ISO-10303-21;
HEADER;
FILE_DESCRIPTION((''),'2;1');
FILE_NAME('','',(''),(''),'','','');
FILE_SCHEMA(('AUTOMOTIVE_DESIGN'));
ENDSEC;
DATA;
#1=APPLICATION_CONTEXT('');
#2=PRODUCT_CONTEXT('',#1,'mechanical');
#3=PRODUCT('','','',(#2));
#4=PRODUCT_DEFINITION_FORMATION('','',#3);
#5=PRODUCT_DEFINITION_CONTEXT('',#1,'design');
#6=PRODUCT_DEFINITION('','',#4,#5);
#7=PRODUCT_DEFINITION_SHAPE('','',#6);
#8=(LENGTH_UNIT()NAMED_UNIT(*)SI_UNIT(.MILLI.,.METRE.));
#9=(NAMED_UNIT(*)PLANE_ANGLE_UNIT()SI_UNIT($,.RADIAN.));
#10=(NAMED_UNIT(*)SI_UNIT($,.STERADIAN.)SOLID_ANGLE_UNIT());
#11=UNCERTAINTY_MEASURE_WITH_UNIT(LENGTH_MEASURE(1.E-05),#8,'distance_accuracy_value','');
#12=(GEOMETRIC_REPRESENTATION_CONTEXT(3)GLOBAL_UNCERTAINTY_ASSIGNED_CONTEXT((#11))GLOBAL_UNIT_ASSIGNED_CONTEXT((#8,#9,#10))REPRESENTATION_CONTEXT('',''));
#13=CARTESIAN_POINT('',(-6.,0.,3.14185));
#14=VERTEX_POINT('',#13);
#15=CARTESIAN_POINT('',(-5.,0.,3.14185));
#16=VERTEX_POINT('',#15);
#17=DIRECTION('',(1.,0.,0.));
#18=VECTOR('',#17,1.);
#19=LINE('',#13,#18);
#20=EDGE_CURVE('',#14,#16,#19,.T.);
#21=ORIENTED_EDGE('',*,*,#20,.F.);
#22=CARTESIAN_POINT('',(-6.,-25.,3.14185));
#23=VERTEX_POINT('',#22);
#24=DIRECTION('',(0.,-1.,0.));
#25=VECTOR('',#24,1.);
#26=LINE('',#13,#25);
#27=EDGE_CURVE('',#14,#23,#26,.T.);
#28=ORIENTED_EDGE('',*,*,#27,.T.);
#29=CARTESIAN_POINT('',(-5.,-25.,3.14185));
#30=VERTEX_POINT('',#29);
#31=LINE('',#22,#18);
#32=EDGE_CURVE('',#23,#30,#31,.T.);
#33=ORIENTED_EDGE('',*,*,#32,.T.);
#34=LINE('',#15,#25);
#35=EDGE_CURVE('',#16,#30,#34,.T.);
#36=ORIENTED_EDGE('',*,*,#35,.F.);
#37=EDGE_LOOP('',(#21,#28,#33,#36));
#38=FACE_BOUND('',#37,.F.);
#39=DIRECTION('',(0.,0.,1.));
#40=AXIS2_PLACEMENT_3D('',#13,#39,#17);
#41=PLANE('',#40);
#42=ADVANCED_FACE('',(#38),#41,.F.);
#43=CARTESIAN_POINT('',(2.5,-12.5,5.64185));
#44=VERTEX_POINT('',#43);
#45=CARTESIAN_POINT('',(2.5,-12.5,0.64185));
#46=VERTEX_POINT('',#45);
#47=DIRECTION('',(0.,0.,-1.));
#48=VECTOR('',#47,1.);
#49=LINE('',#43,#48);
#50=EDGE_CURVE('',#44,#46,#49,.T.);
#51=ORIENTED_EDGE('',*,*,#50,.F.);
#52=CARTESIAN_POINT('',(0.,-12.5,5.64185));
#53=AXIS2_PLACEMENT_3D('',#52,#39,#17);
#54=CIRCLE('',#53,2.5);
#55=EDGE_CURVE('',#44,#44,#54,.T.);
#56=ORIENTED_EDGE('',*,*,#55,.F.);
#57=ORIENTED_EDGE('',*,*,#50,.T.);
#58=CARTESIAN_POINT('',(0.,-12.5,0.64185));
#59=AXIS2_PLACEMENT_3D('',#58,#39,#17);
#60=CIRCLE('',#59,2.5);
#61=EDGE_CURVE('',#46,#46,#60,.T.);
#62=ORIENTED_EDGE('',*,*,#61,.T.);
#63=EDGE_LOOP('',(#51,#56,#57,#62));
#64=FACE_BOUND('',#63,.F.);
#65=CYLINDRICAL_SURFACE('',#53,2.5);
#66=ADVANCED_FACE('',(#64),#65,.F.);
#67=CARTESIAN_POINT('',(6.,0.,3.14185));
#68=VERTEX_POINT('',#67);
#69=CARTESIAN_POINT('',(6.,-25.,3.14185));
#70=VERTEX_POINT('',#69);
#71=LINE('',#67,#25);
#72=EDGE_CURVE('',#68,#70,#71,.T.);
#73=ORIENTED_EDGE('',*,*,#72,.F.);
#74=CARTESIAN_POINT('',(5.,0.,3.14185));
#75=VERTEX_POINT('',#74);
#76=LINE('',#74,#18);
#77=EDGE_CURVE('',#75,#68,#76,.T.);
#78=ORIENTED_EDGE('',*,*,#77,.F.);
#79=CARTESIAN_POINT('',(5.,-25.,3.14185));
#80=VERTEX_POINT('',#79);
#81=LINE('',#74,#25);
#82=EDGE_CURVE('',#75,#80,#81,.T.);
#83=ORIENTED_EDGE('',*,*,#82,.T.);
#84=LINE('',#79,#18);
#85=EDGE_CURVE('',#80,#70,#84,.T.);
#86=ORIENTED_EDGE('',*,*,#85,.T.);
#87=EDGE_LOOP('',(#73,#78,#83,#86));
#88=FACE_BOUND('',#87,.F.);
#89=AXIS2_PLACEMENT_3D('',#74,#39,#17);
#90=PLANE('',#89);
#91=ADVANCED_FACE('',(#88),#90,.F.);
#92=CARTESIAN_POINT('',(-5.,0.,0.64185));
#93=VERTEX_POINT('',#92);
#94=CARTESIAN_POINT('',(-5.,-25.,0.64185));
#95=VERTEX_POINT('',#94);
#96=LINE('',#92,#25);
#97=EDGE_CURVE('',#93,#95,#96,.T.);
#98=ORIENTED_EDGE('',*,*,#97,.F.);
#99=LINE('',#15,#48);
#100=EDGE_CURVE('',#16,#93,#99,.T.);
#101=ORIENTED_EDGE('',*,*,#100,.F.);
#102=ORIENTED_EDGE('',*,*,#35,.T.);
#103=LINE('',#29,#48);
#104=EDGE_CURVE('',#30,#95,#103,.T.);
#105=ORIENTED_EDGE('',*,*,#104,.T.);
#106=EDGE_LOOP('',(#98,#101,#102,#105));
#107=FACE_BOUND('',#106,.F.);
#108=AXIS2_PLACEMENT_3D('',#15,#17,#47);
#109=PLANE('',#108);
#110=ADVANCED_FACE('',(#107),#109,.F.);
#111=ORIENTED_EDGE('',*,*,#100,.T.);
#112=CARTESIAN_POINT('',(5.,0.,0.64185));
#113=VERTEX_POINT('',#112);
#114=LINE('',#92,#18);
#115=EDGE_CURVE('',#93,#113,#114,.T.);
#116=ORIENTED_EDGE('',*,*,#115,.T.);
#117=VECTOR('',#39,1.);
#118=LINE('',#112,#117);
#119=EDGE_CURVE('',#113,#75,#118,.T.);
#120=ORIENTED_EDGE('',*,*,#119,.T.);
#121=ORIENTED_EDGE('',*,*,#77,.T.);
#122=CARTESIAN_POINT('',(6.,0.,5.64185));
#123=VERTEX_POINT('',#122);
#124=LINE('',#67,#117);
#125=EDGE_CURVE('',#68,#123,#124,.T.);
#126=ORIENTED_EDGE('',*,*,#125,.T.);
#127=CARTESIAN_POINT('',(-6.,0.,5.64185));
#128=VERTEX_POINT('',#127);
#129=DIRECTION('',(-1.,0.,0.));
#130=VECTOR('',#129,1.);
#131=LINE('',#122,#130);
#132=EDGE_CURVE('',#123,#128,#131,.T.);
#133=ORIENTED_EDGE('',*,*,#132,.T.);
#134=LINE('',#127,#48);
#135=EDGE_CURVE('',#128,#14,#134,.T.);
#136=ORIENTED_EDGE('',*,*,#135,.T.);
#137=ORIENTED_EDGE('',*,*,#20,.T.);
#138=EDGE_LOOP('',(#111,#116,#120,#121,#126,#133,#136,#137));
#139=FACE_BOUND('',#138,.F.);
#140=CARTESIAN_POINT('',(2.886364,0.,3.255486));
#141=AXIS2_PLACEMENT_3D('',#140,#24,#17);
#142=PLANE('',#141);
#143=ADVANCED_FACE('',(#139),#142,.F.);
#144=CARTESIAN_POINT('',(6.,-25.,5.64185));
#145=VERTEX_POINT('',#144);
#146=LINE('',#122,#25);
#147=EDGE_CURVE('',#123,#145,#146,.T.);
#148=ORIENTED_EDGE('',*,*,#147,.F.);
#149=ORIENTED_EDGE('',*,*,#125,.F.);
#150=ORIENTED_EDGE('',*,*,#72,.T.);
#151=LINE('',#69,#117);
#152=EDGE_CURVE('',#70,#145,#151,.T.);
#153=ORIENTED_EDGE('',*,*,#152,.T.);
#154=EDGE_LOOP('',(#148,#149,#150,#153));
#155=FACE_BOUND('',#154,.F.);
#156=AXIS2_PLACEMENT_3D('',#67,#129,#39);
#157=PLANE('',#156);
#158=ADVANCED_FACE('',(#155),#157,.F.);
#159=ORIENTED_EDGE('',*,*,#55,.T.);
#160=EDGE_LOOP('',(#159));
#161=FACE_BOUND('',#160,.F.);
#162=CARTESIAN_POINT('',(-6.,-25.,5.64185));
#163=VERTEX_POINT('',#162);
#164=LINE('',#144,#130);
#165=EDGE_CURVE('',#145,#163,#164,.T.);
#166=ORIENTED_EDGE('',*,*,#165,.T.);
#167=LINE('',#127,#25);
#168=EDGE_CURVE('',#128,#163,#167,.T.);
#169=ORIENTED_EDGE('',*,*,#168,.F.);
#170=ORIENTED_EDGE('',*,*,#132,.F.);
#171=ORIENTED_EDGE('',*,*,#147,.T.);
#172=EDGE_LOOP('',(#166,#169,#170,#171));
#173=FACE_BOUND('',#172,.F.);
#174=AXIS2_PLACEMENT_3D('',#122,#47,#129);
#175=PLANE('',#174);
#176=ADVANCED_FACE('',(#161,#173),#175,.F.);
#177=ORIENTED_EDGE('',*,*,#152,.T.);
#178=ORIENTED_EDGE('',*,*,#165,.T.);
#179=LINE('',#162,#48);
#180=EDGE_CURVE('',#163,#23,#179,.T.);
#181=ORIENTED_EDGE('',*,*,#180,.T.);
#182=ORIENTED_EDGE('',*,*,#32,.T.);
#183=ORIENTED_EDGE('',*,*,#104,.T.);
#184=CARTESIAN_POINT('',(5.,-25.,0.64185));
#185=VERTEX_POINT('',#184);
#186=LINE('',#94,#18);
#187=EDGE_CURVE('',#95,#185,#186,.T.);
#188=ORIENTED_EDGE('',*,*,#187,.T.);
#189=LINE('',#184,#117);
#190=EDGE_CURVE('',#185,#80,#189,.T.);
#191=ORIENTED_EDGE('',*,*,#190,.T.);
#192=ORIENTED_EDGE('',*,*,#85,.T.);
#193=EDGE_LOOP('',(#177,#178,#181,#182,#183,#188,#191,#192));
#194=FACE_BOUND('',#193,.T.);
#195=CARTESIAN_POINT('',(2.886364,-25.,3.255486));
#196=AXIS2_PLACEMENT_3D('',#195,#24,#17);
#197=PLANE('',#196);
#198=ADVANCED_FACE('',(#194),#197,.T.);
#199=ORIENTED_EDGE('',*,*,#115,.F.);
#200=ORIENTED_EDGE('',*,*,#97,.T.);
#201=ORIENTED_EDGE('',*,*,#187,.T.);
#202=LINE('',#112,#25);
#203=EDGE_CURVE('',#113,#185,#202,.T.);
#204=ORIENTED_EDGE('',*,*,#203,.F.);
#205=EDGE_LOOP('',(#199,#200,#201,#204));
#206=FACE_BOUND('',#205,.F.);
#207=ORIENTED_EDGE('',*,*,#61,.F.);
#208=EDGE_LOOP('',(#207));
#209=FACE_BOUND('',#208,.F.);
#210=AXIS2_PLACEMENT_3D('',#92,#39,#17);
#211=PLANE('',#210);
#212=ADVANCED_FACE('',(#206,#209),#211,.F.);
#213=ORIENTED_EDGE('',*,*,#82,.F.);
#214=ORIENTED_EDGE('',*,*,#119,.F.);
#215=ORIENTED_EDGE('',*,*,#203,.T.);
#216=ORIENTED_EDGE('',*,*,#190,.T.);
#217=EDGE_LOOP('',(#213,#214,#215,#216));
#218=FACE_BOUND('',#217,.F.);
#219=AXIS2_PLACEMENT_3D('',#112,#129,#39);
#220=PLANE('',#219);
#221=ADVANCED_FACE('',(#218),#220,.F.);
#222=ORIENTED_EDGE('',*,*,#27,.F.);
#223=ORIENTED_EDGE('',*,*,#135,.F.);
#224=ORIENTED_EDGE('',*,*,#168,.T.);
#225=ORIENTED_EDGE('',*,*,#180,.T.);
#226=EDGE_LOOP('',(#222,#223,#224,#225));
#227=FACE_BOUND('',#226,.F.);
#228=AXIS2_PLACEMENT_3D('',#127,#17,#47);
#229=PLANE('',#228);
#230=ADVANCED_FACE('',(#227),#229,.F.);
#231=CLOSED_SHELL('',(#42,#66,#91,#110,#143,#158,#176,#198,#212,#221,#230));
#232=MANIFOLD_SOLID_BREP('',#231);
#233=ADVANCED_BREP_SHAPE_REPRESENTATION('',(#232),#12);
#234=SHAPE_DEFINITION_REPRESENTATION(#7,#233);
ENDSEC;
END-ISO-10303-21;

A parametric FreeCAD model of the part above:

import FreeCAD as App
import Part
import Sketcher
from FreeCAD import Vector
Q = App.Units.Quantity


def add_polygon(sketch, points):
    """Adds a closed chain of lines whose ends are joined by coincident constraints."""
    first, n = sketch.GeometryCount, len(points)
    for a, b in zip(points, points[1:] + points[:1]):
        sketch.addGeometry(Part.LineSegment(App.Vector(*a, 0), App.Vector(*b, 0)), False)
    for i in range(n):
        sketch.addConstraint(Sketcher.Constraint("Coincident", first + i, 2, first + (i + 1) % n, 1))

doc = App.newDocument("Part")
params = doc.addObject("Spreadsheet::Sheet", "Params")
for row, (alias, value) in enumerate([
    ("sketch1_width", "12 mm"),
    ("sketch1_width2", "1 mm"),
    ("sketch1_height", "2.5 mm"),
    ("pad1_length", "25 mm"),
    ("sketch2_diameter", "5 mm"),
    ("pocket1_length", "25 mm"),
], start=1):
    params.set(f"A{row}", alias)
    params.set(f"B{row}", "=" + value)
    params.setAlias(f"B{row}", alias)

body = doc.addObject("PartDesign::Body", "Body")

# Sketch on XZ plane
sketch1 = doc.addObject("Sketcher::SketchObject", "Sketch")
body.addObject(sketch1)
sketch1.AttachmentSupport = (doc.XZ_Plane, [""])
sketch1.MapMode = "FlatFace"
add_polygon(sketch1, [(6, 5.6), (-6, 5.6), (-6, 3.1), (-5, 3.1), (-5, 0.6), (5, 0.6), (5, 3.1), (6, 3.1)])  # lines 0-7
sketch1.addConstraint([
    Sketcher.Constraint("Horizontal", 0),
    Sketcher.Constraint("Vertical", 1),
    Sketcher.Constraint("Horizontal", 2),
    Sketcher.Constraint("Vertical", 3),
    Sketcher.Constraint("Horizontal", 4),
    Sketcher.Constraint("Vertical", 5),
    Sketcher.Constraint("Horizontal", 6),
    Sketcher.Constraint("Vertical", 7),
    Sketcher.Constraint("Symmetric", 2, 2, 5, 2, -2),
    Sketcher.Constraint("Equal", 2, 6),
    Sketcher.Constraint("Equal", 1, 3),
    Sketcher.Constraint("DistanceX", 0, 2, 0, 1, Q("12 mm")),
    Sketcher.Constraint("DistanceX", 2, 1, 2, 2, Q("1 mm")),
    Sketcher.Constraint("DistanceY", 1, 2, 1, 1, Q("2.5 mm")),
    Sketcher.Constraint("DistanceY", -1, 1, 0, 2, Q("5.64185 mm")),
])
sketch1.setExpression("Constraints[19]", "Params.sketch1_width")
sketch1.setExpression("Constraints[20]", "Params.sketch1_width2")
sketch1.setExpression("Constraints[21]", "Params.sketch1_height")
pad1 = doc.addObject("PartDesign::Pad", "Pad")
body.addObject(pad1)
pad1.Profile = sketch1
pad1.setExpression("Length", "Params.pad1_length")

# Sketch on XY plane
sketch2 = doc.addObject("Sketcher::SketchObject", "Sketch001")
body.addObject(sketch2)
sketch2.AttachmentSupport = (doc.XY_Plane, [""])
sketch2.MapMode = "FlatFace"
sketch2.AttachmentOffset = App.Placement(Vector(0, 0, 5.64185), App.Rotation())
sketch2.addGeometry(Part.Circle(Vector(0, -12.5, 0), Vector(0, 0, 1), 2.5), False)
sketch2.addConstraint([
    Sketcher.Constraint("PointOnObject", 0, 3, -2),
    Sketcher.Constraint("Diameter", 0, Q("5 mm")),
    Sketcher.Constraint("DistanceY", 0, 3, -1, 1, Q("12.5 mm")),
])
sketch2.setExpression("Constraints[1]", "Params.sketch2_diameter")
pocket1 = doc.addObject("PartDesign::Pocket", "Pocket")
body.addObject(pocket1)
pocket1.Profile = sketch2
pocket1.setExpression("Length", "Params.pocket1_length")

doc.recompute()
